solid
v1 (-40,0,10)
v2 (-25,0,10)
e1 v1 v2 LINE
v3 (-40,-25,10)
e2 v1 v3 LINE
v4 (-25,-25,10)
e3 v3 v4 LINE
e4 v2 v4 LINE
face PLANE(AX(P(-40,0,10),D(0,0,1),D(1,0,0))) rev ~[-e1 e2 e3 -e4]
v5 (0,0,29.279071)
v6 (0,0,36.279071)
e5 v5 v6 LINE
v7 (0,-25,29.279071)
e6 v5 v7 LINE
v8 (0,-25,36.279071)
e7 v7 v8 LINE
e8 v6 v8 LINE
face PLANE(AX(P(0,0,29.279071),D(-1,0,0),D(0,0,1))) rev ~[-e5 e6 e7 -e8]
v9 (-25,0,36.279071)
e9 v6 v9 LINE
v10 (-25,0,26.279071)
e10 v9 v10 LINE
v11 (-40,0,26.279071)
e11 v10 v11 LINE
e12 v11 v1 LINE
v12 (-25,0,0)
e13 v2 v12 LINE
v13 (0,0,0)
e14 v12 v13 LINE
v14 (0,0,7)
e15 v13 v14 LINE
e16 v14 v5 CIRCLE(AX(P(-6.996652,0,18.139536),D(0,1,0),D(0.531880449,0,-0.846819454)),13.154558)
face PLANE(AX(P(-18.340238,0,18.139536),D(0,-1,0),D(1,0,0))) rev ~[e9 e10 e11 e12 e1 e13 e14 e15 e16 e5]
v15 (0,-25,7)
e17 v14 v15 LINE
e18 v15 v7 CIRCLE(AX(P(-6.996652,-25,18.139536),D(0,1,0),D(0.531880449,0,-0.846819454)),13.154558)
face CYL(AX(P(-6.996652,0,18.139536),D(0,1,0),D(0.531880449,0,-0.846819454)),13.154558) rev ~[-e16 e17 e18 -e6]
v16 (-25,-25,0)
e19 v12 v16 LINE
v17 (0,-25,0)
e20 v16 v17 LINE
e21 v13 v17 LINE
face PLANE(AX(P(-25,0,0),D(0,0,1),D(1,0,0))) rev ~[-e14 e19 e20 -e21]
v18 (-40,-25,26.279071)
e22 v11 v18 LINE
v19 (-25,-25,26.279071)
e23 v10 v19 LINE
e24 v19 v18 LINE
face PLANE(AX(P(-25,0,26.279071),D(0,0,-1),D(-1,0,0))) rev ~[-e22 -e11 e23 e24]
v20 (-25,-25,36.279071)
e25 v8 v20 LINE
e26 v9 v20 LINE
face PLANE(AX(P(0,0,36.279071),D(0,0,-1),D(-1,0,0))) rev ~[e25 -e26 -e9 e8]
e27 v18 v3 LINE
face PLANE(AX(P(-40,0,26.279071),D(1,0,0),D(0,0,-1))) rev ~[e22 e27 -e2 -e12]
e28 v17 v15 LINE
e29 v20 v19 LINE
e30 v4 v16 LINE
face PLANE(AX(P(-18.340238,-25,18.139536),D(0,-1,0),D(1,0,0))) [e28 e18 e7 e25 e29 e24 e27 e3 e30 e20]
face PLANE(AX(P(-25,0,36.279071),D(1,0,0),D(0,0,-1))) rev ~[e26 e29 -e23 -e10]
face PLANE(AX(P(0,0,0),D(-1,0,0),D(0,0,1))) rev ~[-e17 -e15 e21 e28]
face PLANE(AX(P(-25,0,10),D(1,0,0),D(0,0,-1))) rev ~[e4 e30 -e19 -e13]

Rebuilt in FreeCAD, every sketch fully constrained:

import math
import FreeCAD as App
import Part
import Sketcher

V = App.Vector

doc = App.newDocument("Part")
body = doc.addObject("PartDesign::Body", "Body")

sketch1 = body.newObject("Sketcher::SketchObject", "Sketch")
sketch1.AttachmentSupport = (doc.getObject("XZ_Plane"), [""])
sketch1.MapMode = "FlatFace"
sketch1.addGeometry([
    Part.LineSegment(V(0, 36, 0), V(-25, 36, 0)),
    Part.LineSegment(V(-25, 36, 0), V(-25, 26, 0)),
    Part.LineSegment(V(-25, 26, 0), V(-40, 26, 0)),
    Part.LineSegment(V(-40, 26, 0), V(-40, 10, 0)),
    Part.LineSegment(V(-40, 10, 0), V(-25, 10, 0)),
    Part.LineSegment(V(-25, 10, 0), V(-25, 0, 0)),
    Part.LineSegment(V(-25, 0, 0), V(0, 0, 0)),
    Part.LineSegment(V(0, 0, 0), V(0, 7, 0)),
    Part.ArcOfCircle(Part.Circle(V(-7, 18, 0), V(0, 0, 1), 13), math.radians(58), math.radians(302)),
    Part.LineSegment(V(0, 29, 0), V(0, 36, 0)),
], False)
sketch1.addConstraint([
    Sketcher.Constraint("Coincident", 0, 2, 1, 1),
    Sketcher.Constraint("Coincident", 1, 2, 2, 1),
    Sketcher.Constraint("Coincident", 2, 2, 3, 1),
    Sketcher.Constraint("Coincident", 3, 2, 4, 1),
    Sketcher.Constraint("Coincident", 4, 2, 5, 1),
    Sketcher.Constraint("Coincident", 5, 2, 6, 1),
    Sketcher.Constraint("Coincident", 6, 2, 7, 1),
    Sketcher.Constraint("Coincident", 7, 2, 8, 2),
    Sketcher.Constraint("Coincident", 8, 1, 9, 1),
    Sketcher.Constraint("Coincident", 9, 2, 0, 1),
    Sketcher.Constraint("Horizontal", 0),
    Sketcher.Constraint("Vertical", 1),
    Sketcher.Constraint("Horizontal", 2),
    Sketcher.Constraint("Vertical", 3),
    Sketcher.Constraint("Horizontal", 4),
    Sketcher.Constraint("Vertical", 5),
    Sketcher.Constraint("Horizontal", 6),
    Sketcher.Constraint("Vertical", 7),
    Sketcher.Constraint("Vertical", 9),
    Sketcher.Constraint("Coincident", 6, 2, -1, 1),
    Sketcher.Constraint("PointOnObject", 8, 1, -2),
    Sketcher.Constraint("Vertical", 1, 2, 4, 2),
    Sketcher.Constraint("Equal", 1, 5),
    Sketcher.Constraint("Equal", 7, 9),
    Sketcher.Constraint("DistanceX", 0, 2, 0, 1, 25.0),
    Sketcher.Constraint("DistanceX", 2, 2, 2, 1, 15.0),
    Sketcher.Constraint("DistanceY", 1, 2, 1, 1, 10.0),
    Sketcher.Constraint("DistanceY", 7, 1, 7, 2, 7.0),
    Sketcher.Constraint("Radius", 8, 13.154558),
    Sketcher.Constraint("DistanceY", 3, 2, 3, 1, 16.279071),
])
pad1 = body.newObject("PartDesign::Pad", "Pad")
pad1.Profile = sketch1
pad1.Length = 25

doc.recompute()
